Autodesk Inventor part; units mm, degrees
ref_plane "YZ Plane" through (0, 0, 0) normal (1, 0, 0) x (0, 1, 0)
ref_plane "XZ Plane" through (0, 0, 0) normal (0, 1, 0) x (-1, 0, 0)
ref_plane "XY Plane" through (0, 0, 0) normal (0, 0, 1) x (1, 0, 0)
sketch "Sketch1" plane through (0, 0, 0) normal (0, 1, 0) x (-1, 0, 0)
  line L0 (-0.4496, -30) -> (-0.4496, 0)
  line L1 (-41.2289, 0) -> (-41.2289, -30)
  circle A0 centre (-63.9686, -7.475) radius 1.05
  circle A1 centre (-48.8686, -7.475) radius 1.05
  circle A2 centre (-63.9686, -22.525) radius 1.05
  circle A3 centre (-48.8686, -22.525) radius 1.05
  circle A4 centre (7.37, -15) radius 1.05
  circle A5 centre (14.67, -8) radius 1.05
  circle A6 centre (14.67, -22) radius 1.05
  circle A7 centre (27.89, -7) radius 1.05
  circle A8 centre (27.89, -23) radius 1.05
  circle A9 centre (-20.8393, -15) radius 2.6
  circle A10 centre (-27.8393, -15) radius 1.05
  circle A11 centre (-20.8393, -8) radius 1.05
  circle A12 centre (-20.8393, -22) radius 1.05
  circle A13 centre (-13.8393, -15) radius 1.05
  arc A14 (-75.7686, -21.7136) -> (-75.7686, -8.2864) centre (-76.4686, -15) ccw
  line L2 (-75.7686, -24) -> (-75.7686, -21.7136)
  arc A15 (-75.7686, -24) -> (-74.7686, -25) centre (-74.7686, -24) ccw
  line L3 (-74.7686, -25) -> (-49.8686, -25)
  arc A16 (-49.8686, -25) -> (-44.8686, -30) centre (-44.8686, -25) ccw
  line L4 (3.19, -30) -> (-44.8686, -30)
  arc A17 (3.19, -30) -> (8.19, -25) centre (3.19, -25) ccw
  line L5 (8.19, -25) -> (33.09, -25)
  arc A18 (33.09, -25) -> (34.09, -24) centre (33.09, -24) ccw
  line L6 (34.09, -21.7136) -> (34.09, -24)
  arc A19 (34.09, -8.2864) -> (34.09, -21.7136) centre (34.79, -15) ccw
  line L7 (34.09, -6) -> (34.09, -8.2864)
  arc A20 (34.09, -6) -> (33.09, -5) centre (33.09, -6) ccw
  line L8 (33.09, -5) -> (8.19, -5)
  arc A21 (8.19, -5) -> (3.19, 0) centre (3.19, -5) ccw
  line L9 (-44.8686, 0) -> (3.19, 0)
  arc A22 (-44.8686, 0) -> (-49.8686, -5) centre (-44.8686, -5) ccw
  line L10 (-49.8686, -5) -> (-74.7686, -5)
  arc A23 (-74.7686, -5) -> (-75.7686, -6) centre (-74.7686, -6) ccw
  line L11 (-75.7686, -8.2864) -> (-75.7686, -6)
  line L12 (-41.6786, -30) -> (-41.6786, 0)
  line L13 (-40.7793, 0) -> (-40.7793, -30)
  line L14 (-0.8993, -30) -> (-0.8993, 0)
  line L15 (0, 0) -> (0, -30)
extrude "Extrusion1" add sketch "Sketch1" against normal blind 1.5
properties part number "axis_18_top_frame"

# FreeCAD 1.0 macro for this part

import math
import FreeCAD as App
import Part
import Sketcher

V = App.Vector
Q = App.Units.Quantity

doc = App.newDocument("Part")
body = doc.addObject("PartDesign::Body", "Body")

sketch1 = doc.addObject("Sketcher::SketchObject", "Sketch")
body.addObject(sketch1)
sketch1.AttachmentSupport = (doc.XZ_Plane, [""])
sketch1.MapMode = "FlatFace"
sketch1.addGeometry(Part.ArcOfCircle(Part.Circle(V(-3.2, -25, 0), V(0, 0, 1), 5), math.radians(180), math.radians(270)), False)
sketch1.addGeometry(Part.LineSegment(V(-8.2, -25, 0), V(-33.1, -25, 0)), False)
sketch1.addGeometry(Part.ArcOfCircle(Part.Circle(V(-33.1, -24, 0), V(0, 0, 1), 1), math.radians(180), math.radians(270)), False)
sketch1.addGeometry(Part.LineSegment(V(-34.1, -24, 0), V(-34.1, -21.7, 0)), False)
sketch1.addGeometry(Part.ArcOfCircle(Part.Circle(V(-34.8, -15, 0), V(0, 0, 1), 6.7), math.radians(-84), math.radians(84)), False)
sketch1.addGeometry(Part.LineSegment(V(-34.1, -8.3, 0), V(-34.1, -6, 0)), False)
sketch1.addGeometry(Part.ArcOfCircle(Part.Circle(V(-33.1, -6, 0), V(0, 0, 1), 1), math.radians(90), math.radians(180)), False)
sketch1.addGeometry(Part.LineSegment(V(-33.1, -5, 0), V(-8.2, -5, 0)), False)
sketch1.addGeometry(Part.ArcOfCircle(Part.Circle(V(-3.2, -5, 0), V(0, 0, 1), 5), math.radians(90), math.radians(180)), False)
sketch1.addGeometry(Part.LineSegment(V(-3.2, 0, 0), V(44.9, 0, 0)), False)
sketch1.addGeometry(Part.ArcOfCircle(Part.Circle(V(44.9, -5, 0), V(0, 0, 1), 5), math.radians(0), math.radians(90)), False)
sketch1.addGeometry(Part.LineSegment(V(49.9, -5, 0), V(74.8, -5, 0)), False)
sketch1.addGeometry(Part.ArcOfCircle(Part.Circle(V(74.8, -6, 0), V(0, 0, 1), 1), math.radians(0), math.radians(90)), False)
sketch1.addGeometry(Part.LineSegment(V(75.8, -6, 0), V(75.8, -8.3, 0)), False)
sketch1.addGeometry(Part.ArcOfCircle(Part.Circle(V(76.5, -15, 0), V(0, 0, 1), 6.7), math.radians(96), math.radians(264)), False)
sketch1.addGeometry(Part.LineSegment(V(75.8, -21.7, 0), V(75.8, -24, 0)), False)
sketch1.addGeometry(Part.ArcOfCircle(Part.Circle(V(74.8, -24, 0), V(0, 0, 1), 1), math.radians(-90), math.radians(0)), False)
sketch1.addGeometry(Part.LineSegment(V(74.8, -25, 0), V(49.9, -25, 0)), False)
sketch1.addGeometry(Part.ArcOfCircle(Part.Circle(V(44.9, -25, 0), V(0, 0, 1), 5), math.radians(-90), math.radians(0)), False)
sketch1.addGeometry(Part.LineSegment(V(44.9, -30, 0), V(-3.2, -30, 0)), False)
sketch1.addGeometry(Part.Circle(V(13.8, -15, 0), V(0, 0, 1), 1.1), False)
sketch1.addGeometry(Part.Circle(V(20.8, -22, 0), V(0, 0, 1), 1.1), False)
sketch1.addGeometry(Part.Circle(V(27.8, -15, 0), V(0, 0, 1), 1.1), False)
sketch1.addGeometry(Part.Circle(V(20.8, -15, 0), V(0, 0, 1), 2.6), False)
sketch1.addGeometry(Part.Circle(V(20.8, -8, 0), V(0, 0, 1), 1.1), False)
sketch1.addGeometry(Part.Circle(V(-27.9, -7, 0), V(0, 0, 1), 1.1), False)
sketch1.addGeometry(Part.Circle(V(-27.9, -23, 0), V(0, 0, 1), 1.1), False)
sketch1.addGeometry(Part.Circle(V(-14.7, -22, 0), V(0, 0, 1), 1.1), False)
sketch1.addGeometry(Part.Circle(V(-7.4, -15, 0), V(0, 0, 1), 1.1), False)
sketch1.addGeometry(Part.Circle(V(-14.7, -8, 0), V(0, 0, 1), 1.1), False)
sketch1.addGeometry(Part.Circle(V(48.9, -7.5, 0), V(0, 0, 1), 1.1), False)
sketch1.addGeometry(Part.Circle(V(64, -22.5, 0), V(0, 0, 1), 1.1), False)
sketch1.addGeometry(Part.Circle(V(48.9, -22.5, 0), V(0, 0, 1), 1.1), False)
sketch1.addGeometry(Part.Circle(V(64, -7.5, 0), V(0, 0, 1), 1.1), False)
sketch1.addConstraint(Sketcher.Constraint("Coincident", 0, 1, 1, 1))
sketch1.addConstraint(Sketcher.Constraint("Tangent", 1, 2, 2, 2))
sketch1.addConstraint(Sketcher.Constraint("Tangent", 2, 1, 3, 1))
sketch1.addConstraint(Sketcher.Constraint("Coincident", 3, 2, 4, 1))
sketch1.addConstraint(Sketcher.Constraint("Coincident", 4, 2, 5, 1))
sketch1.addConstraint(Sketcher.Constraint("Tangent", 5, 2, 6, 2))
sketch1.addConstraint(Sketcher.Constraint("Tangent", 6, 1, 7, 1))
sketch1.addConstraint(Sketcher.Constraint("Coincident", 7, 2, 8, 2))
sketch1.addConstraint(Sketcher.Constraint("Tangent", 8, 1, 9, 1))
sketch1.addConstraint(Sketcher.Constraint("Tangent", 9, 2, 10, 2))
sketch1.addConstraint(Sketcher.Constraint("Coincident", 10, 1, 11, 1))
sketch1.addConstraint(Sketcher.Constraint("Tangent", 11, 2, 12, 2))
sketch1.addConstraint(Sketcher.Constraint("Tangent", 12, 1, 13, 1))
sketch1.addConstraint(Sketcher.Constraint("Coincident", 13, 2, 14, 1))
sketch1.addConstraint(Sketcher.Constraint("Coincident", 14, 2, 15, 1))
sketch1.addConstraint(Sketcher.Constraint("Tangent", 15, 2, 16, 2))
sketch1.addConstraint(Sketcher.Constraint("Tangent", 16, 1, 17, 1))
sketch1.addConstraint(Sketcher.Constraint("Coincident", 17, 2, 18, 2))
sketch1.addConstraint(Sketcher.Constraint("Tangent", 18, 1, 19, 1))
sketch1.addConstraint(Sketcher.Constraint("Tangent", 19, 2, 0, 2))
sketch1.addConstraint(Sketcher.Constraint("Horizontal", 1))
sketch1.addConstraint(Sketcher.Constraint("Vertical", 3))
sketch1.addConstraint(Sketcher.Constraint("Vertical", 5))
sketch1.addConstraint(Sketcher.Constraint("Horizontal", 7))
sketch1.addConstraint(Sketcher.Constraint("Horizontal", 9))
sketch1.addConstraint(Sketcher.Constraint("Horizontal", 11))
sketch1.addConstraint(Sketcher.Constraint("Vertical", 13))
sketch1.addConstraint(Sketcher.Constraint("Vertical", 15))
sketch1.addConstraint(Sketcher.Constraint("Horizontal", 17))
sketch1.addConstraint(Sketcher.Constraint("Horizontal", 19))
sketch1.addConstraint(Sketcher.Constraint("Equal", 2, 6))
sketch1.addConstraint(Sketcher.Constraint("Equal", 0, 8))
sketch1.addConstraint(Sketcher.Constraint("Equal", 8, 10))
sketch1.addConstraint(Sketcher.Constraint("Equal", 6, 12))
sketch1.addConstraint(Sketcher.Constraint("Equal", 4, 14))
sketch1.addConstraint(Sketcher.Constraint("Equal", 12, 16))
sketch1.addConstraint(Sketcher.Constraint("Equal", 10, 18))
sketch1.addConstraint(Sketcher.Constraint("Equal", 20, 21))
sketch1.addConstraint(Sketcher.Constraint("Equal", 21, 22))
sketch1.addConstraint(Sketcher.Constraint("Equal", 22, 24))
sketch1.addConstraint(Sketcher.Constraint("Equal", 24, 25))
sketch1.addConstraint(Sketcher.Constraint("Equal", 25, 26))
sketch1.addConstraint(Sketcher.Constraint("Equal", 26, 27))
sketch1.addConstraint(Sketcher.Constraint("Equal", 27, 28))
sketch1.addConstraint(Sketcher.Constraint("Equal", 28, 29))
sketch1.addConstraint(Sketcher.Constraint("Equal", 29, 30))
sketch1.addConstraint(Sketcher.Constraint("Equal", 30, 31))
sketch1.addConstraint(Sketcher.Constraint("Equal", 31, 32))
sketch1.addConstraint(Sketcher.Constraint("Equal", 32, 33))
sketch1.addConstraint(Sketcher.Constraint("PointOnObject", 8, 1, -1))
sketch1.addConstraint(Sketcher.Constraint("Horizontal", 6, 3, 12, 3))
sketch1.addConstraint(Sketcher.Constraint("Horizontal", 4, 3, 14, 3))
sketch1.addConstraint(Sketcher.Constraint("Horizontal", 2, 3, 16, 3))
sketch1.addConstraint(Sketcher.Constraint("Horizontal", 14, 3, 20, 3))
sketch1.addConstraint(Sketcher.Constraint("Horizontal", 20, 3, 22, 3))
sketch1.addConstraint(Sketcher.Constraint("Horizontal", 22, 3, 23, 3))
sketch1.addConstraint(Sketcher.Constraint("Horizontal", 21, 3, 27, 3))
sketch1.addConstraint(Sketcher.Constraint("Horizontal", 23, 3, 28, 3))
sketch1.addConstraint(Sketcher.Constraint("Horizontal", 24, 3, 29, 3))
sketch1.addConstraint(Sketcher.Constraint("Horizontal", 31, 3, 32, 3))
sketch1.addConstraint(Sketcher.Constraint("Horizontal", 30, 3, 33, 3))
sketch1.addConstraint(Sketcher.Constraint("Horizontal", 18, 3, 0, 1))
sketch1.addConstraint(Sketcher.Constraint("Horizontal", 10, 3, 6, 1))
sketch1.addConstraint(Sketcher.Constraint("Horizontal", 4, 2, 13, 2))
sketch1.addConstraint(Sketcher.Constraint("Horizontal", 3, 2, 14, 2))
sketch1.addConstraint(Sketcher.Constraint("Vertical", 2, 3, 6, 3))
sketch1.addConstraint(Sketcher.Constraint("Vertical", 0, 3, 8, 3))
sketch1.addConstraint(Sketcher.Constraint("Vertical", 10, 3, 18, 3))
sketch1.addConstraint(Sketcher.Constraint("Vertical", 21, 3, 23, 3))
sketch1.addConstraint(Sketcher.Constraint("Vertical", 23, 3, 24, 3))
sketch1.addConstraint(Sketcher.Constraint("Vertical", 25, 3, 26, 3))
sketch1.addConstraint(Sketcher.Constraint("Vertical", 27, 3, 29, 3))
sketch1.addConstraint(Sketcher.Constraint("Vertical", 30, 3, 32, 3))
sketch1.addConstraint(Sketcher.Constraint("Vertical", 31, 3, 33, 3))
sketch1.addConstraint(Sketcher.Constraint("Equal", 7, 11))
sketch1.addConstraint(Sketcher.Constraint("Equal", 3, 5))
sketch1.addConstraint(Sketcher.Constraint("Radius", 0, Q("5 mm")))
sketch1.addConstraint(Sketcher.Constraint("Radius", 2, Q("1 mm")))
sketch1.addConstraint(Sketcher.Constraint("Diameter", 20, Q("2.1 mm")))
sketch1.addConstraint(Sketcher.Constraint("Diameter", 23, Q("5.2 mm")))
sketch1.addConstraint(Sketcher.Constraint("Radius", 4, Q("6.75 mm")))
sketch1.addConstraint(Sketcher.Constraint("DistanceX", 1, 2, 1, 1, Q("24.9 mm")))
sketch1.addConstraint(Sketcher.Constraint("DistanceY", 0, 3, -1, 1, Q("25 mm")))
sketch1.addConstraint(Sketcher.Constraint("DistanceY", 21, 3, -1, 1, Q("22 mm")))
sketch1.addConstraint(Sketcher.Constraint("DistanceY", 24, 3, -1, 1, Q("8 mm")))
sketch1.addConstraint(Sketcher.Constraint("DistanceY", 25, 3, -1, 1, Q("7 mm")))
sketch1.addConstraint(Sketcher.Constraint("DistanceY", 26, 3, -1, 1, Q("23 mm")))
sketch1.addConstraint(Sketcher.Constraint("DistanceX", 20, 3, 21, 3, Q("7 mm")))
sketch1.addConstraint(Sketcher.Constraint("DistanceX", 21, 3, 22, 3, Q("7 mm")))
sketch1.addConstraint(Sketcher.Constraint("DistanceX", 10, 3, 30, 3, Q("4 mm")))
sketch1.addConstraint(Sketcher.Constraint("DistanceX", 4, 3, 2, 3, Q("1.7 mm")))
sketch1.addConstraint(Sketcher.Constraint("DistanceX", 6, 3, 25, 3, Q("5.2 mm")))
sketch1.addConstraint(Sketcher.Constraint("DistanceX", 27, 3, 28, 3, Q("7.3 mm")))
sketch1.addConstraint(Sketcher.Constraint("DistanceX", 31, 3, 16, 3, Q("10.8 mm")))
sketch1.addConstraint(Sketcher.Constraint("DistanceX", 0, 3, -1, 1, Q("3.19 mm")))
sketch1.addConstraint(Sketcher.Constraint("DistanceX", 27, 3, -1, 1, Q("14.67 mm")))
sketch1.addConstraint(Sketcher.Constraint("DistanceY", 31, 3, 30, 3, Q("15.05 mm")))
sketch1.addConstraint(Sketcher.Constraint("DistanceX", 9, 1, 9, 2, Q("48.0586 mm")))
sketch1.addConstraint(Sketcher.Constraint("DistanceY", 30, 3, -1, 1, Q("7.475 mm")))
sketch1.addConstraint(Sketcher.Constraint("DistanceX", -1, 1, 20, 3, Q("13.8393 mm")))
pad1 = doc.addObject("PartDesign::Pad", "Pad")
body.addObject(pad1)
pad1.Profile = sketch1
pad1.Length = 1.5

doc.recompute()
